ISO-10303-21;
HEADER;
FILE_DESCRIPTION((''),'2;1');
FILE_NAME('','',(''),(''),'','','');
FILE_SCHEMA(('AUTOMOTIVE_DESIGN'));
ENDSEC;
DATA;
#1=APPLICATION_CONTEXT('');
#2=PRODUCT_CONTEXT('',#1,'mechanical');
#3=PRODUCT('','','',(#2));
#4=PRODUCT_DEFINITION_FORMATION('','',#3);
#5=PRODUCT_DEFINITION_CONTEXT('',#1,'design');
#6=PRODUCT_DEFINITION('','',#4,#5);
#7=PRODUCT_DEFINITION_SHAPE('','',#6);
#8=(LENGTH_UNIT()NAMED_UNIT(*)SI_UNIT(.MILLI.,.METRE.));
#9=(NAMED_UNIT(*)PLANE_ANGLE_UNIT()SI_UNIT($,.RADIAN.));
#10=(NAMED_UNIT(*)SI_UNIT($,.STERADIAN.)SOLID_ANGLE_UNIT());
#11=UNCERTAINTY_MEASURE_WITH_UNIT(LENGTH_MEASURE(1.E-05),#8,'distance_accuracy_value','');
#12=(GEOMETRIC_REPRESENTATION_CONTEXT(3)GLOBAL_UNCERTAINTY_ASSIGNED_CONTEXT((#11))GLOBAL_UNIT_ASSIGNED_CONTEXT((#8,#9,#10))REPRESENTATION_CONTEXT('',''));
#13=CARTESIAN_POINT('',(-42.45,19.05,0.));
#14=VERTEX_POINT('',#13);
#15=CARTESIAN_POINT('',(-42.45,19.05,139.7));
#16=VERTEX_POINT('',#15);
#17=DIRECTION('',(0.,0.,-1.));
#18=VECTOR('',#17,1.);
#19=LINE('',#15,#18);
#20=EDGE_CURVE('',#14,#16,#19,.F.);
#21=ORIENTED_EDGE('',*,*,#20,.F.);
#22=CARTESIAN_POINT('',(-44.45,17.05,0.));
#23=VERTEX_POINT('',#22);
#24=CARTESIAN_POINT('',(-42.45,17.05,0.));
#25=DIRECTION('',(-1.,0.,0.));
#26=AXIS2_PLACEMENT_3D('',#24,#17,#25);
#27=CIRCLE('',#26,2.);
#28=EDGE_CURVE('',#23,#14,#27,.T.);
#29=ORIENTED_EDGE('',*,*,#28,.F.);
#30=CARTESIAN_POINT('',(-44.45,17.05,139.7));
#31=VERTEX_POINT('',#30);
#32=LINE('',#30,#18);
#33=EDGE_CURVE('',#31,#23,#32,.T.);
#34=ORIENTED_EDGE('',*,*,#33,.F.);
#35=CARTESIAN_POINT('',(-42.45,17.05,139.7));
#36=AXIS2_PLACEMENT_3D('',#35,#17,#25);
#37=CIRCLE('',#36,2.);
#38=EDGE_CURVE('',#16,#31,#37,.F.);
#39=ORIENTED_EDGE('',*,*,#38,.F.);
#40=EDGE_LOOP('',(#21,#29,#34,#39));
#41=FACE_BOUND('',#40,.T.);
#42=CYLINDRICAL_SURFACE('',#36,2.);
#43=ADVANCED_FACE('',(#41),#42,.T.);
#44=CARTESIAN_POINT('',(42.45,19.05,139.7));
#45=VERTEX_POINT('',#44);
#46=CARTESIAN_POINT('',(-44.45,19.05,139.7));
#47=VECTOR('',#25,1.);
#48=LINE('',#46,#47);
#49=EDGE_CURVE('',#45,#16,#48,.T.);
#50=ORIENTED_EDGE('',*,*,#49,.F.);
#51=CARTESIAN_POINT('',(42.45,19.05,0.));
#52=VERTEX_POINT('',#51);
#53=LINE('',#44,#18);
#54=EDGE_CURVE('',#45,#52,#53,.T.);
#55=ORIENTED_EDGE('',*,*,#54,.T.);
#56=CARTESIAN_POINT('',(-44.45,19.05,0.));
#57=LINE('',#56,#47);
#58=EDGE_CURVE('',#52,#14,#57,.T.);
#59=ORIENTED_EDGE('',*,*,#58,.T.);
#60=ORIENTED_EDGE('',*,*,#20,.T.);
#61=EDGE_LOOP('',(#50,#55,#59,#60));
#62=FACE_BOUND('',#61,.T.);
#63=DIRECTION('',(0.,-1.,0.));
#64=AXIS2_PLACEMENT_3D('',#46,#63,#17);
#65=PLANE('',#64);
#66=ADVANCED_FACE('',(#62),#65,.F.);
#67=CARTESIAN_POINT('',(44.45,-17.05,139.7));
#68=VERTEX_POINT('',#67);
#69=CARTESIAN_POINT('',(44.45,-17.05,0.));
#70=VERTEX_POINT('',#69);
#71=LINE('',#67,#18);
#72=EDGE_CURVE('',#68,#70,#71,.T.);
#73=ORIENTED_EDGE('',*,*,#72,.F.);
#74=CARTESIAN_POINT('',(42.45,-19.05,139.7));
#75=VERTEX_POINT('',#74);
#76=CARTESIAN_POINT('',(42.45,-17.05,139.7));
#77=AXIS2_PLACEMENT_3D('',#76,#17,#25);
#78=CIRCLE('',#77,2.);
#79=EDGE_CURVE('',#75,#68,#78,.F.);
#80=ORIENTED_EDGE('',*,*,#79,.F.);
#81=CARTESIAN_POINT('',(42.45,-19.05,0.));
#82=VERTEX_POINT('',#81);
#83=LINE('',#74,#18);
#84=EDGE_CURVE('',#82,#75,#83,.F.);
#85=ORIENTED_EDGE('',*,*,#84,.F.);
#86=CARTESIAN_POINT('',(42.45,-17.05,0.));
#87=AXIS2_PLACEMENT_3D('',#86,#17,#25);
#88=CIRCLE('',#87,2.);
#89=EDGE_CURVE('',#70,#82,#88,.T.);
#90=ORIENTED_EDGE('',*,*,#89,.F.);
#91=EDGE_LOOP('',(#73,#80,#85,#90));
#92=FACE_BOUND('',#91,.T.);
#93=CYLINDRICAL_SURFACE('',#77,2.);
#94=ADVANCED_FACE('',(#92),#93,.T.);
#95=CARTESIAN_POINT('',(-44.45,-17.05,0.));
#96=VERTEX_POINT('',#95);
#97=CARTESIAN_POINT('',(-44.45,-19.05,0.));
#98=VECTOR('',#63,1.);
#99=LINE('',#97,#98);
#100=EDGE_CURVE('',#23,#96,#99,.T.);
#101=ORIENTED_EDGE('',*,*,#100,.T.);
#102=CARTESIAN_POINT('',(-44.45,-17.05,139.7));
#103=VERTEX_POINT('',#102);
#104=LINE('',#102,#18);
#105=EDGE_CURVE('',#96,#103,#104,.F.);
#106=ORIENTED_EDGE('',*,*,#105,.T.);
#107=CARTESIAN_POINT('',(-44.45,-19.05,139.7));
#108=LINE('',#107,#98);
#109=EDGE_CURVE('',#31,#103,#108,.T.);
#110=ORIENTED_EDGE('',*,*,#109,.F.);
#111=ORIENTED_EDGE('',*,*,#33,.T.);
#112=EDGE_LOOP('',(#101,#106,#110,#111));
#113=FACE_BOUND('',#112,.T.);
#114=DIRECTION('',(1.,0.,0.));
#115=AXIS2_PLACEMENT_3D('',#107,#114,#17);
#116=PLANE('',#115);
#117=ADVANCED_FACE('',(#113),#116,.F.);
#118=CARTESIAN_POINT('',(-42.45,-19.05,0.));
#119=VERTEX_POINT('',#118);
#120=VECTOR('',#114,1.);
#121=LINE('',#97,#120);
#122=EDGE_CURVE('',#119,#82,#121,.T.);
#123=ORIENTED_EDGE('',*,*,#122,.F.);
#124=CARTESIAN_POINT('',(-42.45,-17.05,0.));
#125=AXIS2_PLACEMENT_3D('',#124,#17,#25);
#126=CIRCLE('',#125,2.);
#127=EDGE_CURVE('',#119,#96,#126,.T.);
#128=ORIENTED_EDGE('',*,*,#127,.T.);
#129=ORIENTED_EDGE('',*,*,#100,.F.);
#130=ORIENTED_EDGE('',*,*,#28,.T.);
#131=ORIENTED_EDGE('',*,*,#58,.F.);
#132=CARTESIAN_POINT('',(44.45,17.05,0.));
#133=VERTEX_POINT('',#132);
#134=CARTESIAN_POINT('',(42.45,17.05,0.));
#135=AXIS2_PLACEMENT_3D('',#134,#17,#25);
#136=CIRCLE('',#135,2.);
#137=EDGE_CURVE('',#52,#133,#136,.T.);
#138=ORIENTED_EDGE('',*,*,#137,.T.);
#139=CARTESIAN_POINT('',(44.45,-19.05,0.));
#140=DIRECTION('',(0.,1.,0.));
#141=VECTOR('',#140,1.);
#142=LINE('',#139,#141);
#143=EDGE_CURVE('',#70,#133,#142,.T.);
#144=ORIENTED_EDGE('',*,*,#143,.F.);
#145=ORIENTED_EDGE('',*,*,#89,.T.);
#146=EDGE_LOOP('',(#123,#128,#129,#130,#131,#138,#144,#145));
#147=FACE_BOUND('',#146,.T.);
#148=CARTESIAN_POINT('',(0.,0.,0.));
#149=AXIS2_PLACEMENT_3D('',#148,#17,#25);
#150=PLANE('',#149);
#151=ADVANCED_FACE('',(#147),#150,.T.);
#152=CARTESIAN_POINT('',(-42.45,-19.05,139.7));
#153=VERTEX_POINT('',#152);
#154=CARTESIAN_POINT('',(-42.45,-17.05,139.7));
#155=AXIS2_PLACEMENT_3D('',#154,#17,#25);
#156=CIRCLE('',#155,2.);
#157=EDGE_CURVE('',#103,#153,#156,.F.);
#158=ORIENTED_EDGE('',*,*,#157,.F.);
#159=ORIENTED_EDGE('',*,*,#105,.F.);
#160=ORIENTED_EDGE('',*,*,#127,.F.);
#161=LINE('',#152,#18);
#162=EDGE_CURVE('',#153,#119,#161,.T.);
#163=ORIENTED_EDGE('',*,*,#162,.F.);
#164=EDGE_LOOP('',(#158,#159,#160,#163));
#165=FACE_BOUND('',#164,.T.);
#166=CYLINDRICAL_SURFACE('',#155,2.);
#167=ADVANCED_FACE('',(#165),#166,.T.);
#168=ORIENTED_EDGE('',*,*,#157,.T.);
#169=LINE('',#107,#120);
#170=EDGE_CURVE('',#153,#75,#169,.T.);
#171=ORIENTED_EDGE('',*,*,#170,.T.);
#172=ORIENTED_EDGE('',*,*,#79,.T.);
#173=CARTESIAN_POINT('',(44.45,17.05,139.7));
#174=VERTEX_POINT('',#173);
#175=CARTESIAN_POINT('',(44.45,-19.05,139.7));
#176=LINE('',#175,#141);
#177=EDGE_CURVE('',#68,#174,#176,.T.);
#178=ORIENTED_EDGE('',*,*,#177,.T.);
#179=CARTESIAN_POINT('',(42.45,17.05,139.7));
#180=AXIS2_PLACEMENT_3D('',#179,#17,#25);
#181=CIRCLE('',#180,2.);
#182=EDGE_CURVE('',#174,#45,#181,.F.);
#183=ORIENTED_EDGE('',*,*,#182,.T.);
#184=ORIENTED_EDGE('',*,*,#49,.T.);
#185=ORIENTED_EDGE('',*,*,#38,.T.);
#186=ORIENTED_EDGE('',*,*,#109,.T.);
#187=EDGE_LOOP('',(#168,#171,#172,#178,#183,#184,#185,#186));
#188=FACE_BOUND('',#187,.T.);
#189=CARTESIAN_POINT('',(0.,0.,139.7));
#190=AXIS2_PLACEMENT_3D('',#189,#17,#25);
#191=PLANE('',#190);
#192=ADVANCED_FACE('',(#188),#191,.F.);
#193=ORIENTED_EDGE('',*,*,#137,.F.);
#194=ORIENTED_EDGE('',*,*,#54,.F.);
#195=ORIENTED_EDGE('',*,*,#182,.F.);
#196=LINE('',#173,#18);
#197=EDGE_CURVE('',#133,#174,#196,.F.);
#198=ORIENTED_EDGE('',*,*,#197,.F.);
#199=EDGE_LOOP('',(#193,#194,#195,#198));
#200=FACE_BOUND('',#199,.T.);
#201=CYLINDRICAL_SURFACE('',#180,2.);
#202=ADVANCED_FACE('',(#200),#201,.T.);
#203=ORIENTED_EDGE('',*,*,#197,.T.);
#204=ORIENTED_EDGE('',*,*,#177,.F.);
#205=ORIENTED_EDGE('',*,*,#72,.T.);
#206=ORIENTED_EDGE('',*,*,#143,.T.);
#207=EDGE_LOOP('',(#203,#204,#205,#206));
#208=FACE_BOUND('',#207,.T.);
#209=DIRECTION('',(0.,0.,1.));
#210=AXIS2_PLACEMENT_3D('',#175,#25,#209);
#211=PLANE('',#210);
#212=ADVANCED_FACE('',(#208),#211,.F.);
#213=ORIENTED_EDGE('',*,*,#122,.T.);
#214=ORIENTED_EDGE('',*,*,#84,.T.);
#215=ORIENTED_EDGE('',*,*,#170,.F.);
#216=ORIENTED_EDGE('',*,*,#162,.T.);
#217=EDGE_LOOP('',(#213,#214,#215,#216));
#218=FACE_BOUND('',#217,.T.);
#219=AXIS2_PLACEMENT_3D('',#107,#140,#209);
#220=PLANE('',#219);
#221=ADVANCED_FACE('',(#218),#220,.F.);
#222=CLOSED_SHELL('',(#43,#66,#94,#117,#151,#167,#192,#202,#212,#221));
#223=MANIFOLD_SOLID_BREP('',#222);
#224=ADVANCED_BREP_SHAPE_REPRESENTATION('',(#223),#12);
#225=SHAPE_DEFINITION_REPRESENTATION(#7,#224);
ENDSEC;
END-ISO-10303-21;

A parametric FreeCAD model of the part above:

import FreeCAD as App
import Part
import Sketcher
from FreeCAD import Vector
Q = App.Units.Quantity


def edges_at(feature, points):
    """Names of the edges that pass closest to the given points."""
    edges = feature.Shape.Edges
    near = lambda p: min(range(len(edges)), key=lambda i: edges[i].distToShape(Part.Vertex(*p))[0])
    return sorted({f"Edge{near(p) + 1}" for p in points})


def add_polygon(sketch, points):
    """Adds a closed chain of lines whose ends are joined by coincident constraints."""
    first, n = sketch.GeometryCount, len(points)
    for a, b in zip(points, points[1:] + points[:1]):
        sketch.addGeometry(Part.LineSegment(App.Vector(*a, 0), App.Vector(*b, 0)), False)
    for i in range(n):
        sketch.addConstraint(Sketcher.Constraint("Coincident", first + i, 2, first + (i + 1) % n, 1))

doc = App.newDocument("Part")
body = doc.addObject("PartDesign::Body", "Body")

# Sketch on XY plane
sketch1 = doc.addObject("Sketcher::SketchObject", "Sketch")
body.addObject(sketch1)
sketch1.AttachmentSupport = (doc.XY_Plane, [""])
sketch1.MapMode = "FlatFace"
add_polygon(sketch1, [(-44.45, 19.05), (-44.45, -19.05), (44.45, -19.05), (44.45, 19.05)])  # lines 0-3
sketch1.addConstraint([
    Sketcher.Constraint("Vertical", 0),
    Sketcher.Constraint("Horizontal", 1),
    Sketcher.Constraint("Vertical", 2),
    Sketcher.Constraint("Horizontal", 3),
    Sketcher.Constraint("Symmetric", 0, 2, 2, 2, -1, 1),
    Sketcher.Constraint("DistanceX", 1, 1, 1, 2, Q("3.5 in")),
    Sketcher.Constraint("DistanceY", 0, 2, 0, 1, Q("1.5 in")),
])
pad1 = doc.addObject("PartDesign::Pad", "Pad")
body.addObject(pad1)
pad1.Profile = sketch1
pad1.Length = Q("5.5 in")
doc.recompute()

fillet = doc.addObject("PartDesign::Fillet", "Fillet")
body.addObject(fillet)
fillet.Base = (pad1, edges_at(pad1, [
    (44.45, -19.05, 69.85),
    (-44.45, -19.05, 69.85),
    (-44.45, 19.05, 69.85),
    (44.45, 19.05, 69.85),
]))
fillet.Radius = 2

doc.recompute()
